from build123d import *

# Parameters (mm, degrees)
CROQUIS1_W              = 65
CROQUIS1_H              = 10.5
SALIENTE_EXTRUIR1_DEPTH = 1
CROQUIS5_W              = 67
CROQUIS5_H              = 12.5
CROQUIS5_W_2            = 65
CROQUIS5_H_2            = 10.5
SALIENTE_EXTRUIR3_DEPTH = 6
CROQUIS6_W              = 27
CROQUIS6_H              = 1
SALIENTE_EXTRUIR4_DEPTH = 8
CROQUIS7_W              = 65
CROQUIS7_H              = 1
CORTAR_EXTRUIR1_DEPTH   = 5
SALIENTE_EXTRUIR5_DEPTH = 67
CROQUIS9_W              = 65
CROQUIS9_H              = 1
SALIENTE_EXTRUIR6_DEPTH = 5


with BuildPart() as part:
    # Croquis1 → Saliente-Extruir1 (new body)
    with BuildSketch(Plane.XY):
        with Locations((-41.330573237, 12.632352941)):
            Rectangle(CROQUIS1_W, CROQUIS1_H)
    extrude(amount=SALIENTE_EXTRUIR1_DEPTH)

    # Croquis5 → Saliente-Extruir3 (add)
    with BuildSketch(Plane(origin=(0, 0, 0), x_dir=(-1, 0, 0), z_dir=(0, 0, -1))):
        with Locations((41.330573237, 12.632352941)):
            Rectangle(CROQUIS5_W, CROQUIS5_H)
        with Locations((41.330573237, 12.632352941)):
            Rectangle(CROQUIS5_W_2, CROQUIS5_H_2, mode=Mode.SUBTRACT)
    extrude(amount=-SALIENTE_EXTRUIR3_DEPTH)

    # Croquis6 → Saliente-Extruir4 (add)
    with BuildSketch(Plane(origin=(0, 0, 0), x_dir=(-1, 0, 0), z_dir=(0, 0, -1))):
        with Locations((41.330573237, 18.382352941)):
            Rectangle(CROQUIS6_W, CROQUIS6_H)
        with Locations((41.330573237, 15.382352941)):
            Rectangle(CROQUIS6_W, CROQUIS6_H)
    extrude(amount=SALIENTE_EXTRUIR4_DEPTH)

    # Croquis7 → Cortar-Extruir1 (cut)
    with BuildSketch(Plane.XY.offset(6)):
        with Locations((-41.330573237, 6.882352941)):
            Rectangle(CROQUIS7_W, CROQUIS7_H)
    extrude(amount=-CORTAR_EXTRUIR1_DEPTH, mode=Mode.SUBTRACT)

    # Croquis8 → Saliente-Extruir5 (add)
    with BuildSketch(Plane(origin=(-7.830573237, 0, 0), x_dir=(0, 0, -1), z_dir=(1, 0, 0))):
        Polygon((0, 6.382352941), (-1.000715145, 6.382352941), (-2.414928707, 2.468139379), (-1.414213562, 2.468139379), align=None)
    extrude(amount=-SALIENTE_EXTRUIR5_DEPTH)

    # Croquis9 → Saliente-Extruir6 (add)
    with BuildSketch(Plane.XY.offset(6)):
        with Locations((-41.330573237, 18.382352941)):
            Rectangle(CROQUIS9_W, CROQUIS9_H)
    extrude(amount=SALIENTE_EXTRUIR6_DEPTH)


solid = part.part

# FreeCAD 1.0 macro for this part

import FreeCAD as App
import Part
import Sketcher

V = App.Vector


def add_polygon(sketch, points):
    """Adds a closed chain of lines whose ends are joined by coincident constraints."""
    first, n = sketch.GeometryCount, len(points)
    for a, b in zip(points, points[1:] + points[:1]):
        sketch.addGeometry(Part.LineSegment(App.Vector(*a, 0), App.Vector(*b, 0)), False)
    for i in range(n):
        sketch.addConstraint(Sketcher.Constraint("Coincident", first + i, 2, first + (i + 1) % n, 1))

doc = App.newDocument("Part")
body = doc.addObject("PartDesign::Body", "Body")

# Sketch on XY plane
sketch1 = body.newObject("Sketcher::SketchObject", "Sketch")
sketch1.AttachmentSupport = (doc.getObject("XY_Plane"), [""])
sketch1.MapMode = "FlatFace"
add_polygon(sketch1, [(-74, 18), (-74, 7), (-9, 7), (-9, 18)])  # lines 0-3
sketch1.addConstraint([
    Sketcher.Constraint("Vertical", 0),
    Sketcher.Constraint("Horizontal", 1),
    Sketcher.Constraint("Vertical", 2),
    Sketcher.Constraint("Horizontal", 3),
    Sketcher.Constraint("DistanceX", 1, 1, 1, 2, 65.0),
    Sketcher.Constraint("DistanceY", 0, 2, 0, 1, 10.5),
    Sketcher.Constraint("DistanceX", 0, 2, -1, 1, 73.830573),
    Sketcher.Constraint("DistanceY", -1, 1, 0, 2, 7.382353),
])
pad1 = body.newObject("PartDesign::Pad", "Pad")
pad1.Profile = sketch1
pad1.Length = 1

# Sketch on XY plane
sketch2 = body.newObject("Sketcher::SketchObject", "Sketch001")
sketch2.AttachmentSupport = (doc.getObject("XY_Plane"), [""])
sketch2.MapMode = "FlatFace"
add_polygon(sketch2, [(-8, 19), (-8, 6), (-75, 6), (-75, 19)])  # lines 0-3
add_polygon(sketch2, [(-74, 7), (-9, 7), (-9, 18), (-74, 18)])  # lines 4-7
sketch2.addConstraint([
    Sketcher.Constraint("Vertical", 0),
    Sketcher.Constraint("Horizontal", 1),
    Sketcher.Constraint("Vertical", 2),
    Sketcher.Constraint("Horizontal", 3),
    Sketcher.Constraint("Horizontal", 4),
    Sketcher.Constraint("Vertical", 5),
    Sketcher.Constraint("Horizontal", 6),
    Sketcher.Constraint("Vertical", 7),
    Sketcher.Constraint("DistanceX", 1, 2, 1, 1, 67.0),
    Sketcher.Constraint("DistanceX", 4, 1, 4, 2, 65.0),
    Sketcher.Constraint("DistanceY", 0, 2, 0, 1, 12.5),
    Sketcher.Constraint("DistanceY", 5, 1, 5, 2, 10.5),
    Sketcher.Constraint("DistanceX", 4, 2, 0, 2, 1.0),
    Sketcher.Constraint("DistanceY", 0, 2, 4, 2, 1.0),
    Sketcher.Constraint("DistanceX", 0, 2, -1, 1, 7.830573),
    Sketcher.Constraint("DistanceY", -1, 1, 0, 2, 6.382353),
])
pad2 = body.newObject("PartDesign::Pad", "Pad001")
pad2.Profile = sketch2
pad2.Length = 6

# Sketch on XY plane
sketch3 = body.newObject("Sketcher::SketchObject", "Sketch002")
sketch3.AttachmentSupport = (doc.getObject("XY_Plane"), [""])
sketch3.MapMode = "FlatFace"
add_polygon(sketch3, [(-27.8, 18.9), (-27.8, 17.9), (-54.8, 17.9), (-54.8, 18.9)])  # lines 0-3
add_polygon(sketch3, [(-27.8, 15.9), (-27.8, 14.9), (-54.8, 14.9), (-54.8, 15.9)])  # lines 4-7
sketch3.addConstraint([
    Sketcher.Constraint("Vertical", 0),
    Sketcher.Constraint("Horizontal", 1),
    Sketcher.Constraint("Vertical", 2),
    Sketcher.Constraint("Horizontal", 3),
    Sketcher.Constraint("Vertical", 4),
    Sketcher.Constraint("Horizontal", 5),
    Sketcher.Constraint("Vertical", 6),
    Sketcher.Constraint("Horizontal", 7),
    Sketcher.Constraint("Vertical", 3, 2, 4, 2),
    Sketcher.Constraint("Vertical", 2, 2, 5, 2),
    Sketcher.Constraint("Equal", 2, 4),
    Sketcher.Constraint("DistanceX", 1, 2, 1, 1, 27.0),
    Sketcher.Constraint("DistanceY", 0, 2, 0, 1, 1.0),
    Sketcher.Constraint("DistanceY", 4, 2, 0, 2, 3.0),
    Sketcher.Constraint("DistanceX", 0, 2, -1, 1, 27.830573),
    Sketcher.Constraint("DistanceY", -1, 1, 0, 2, 17.882353),
])
pad3 = body.newObject("PartDesign::Pad", "Pad002")
pad3.Profile = sketch3
pad3.Length = 8
pad3.Reversed = True

# Sketch on XY plane
sketch4 = body.newObject("Sketcher::SketchObject", "Sketch003")
sketch4.AttachmentSupport = (doc.getObject("XY_Plane"), [""])
sketch4.MapMode = "FlatFace"
sketch4.AttachmentOffset = App.Placement(V(0, 0, 6), App.Rotation())
add_polygon(sketch4, [(-73.8, 7.4), (-73.8, 6.4), (-8.8, 6.4), (-8.8, 7.4)])  # lines 0-3
sketch4.addConstraint([
    Sketcher.Constraint("Vertical", 0),
    Sketcher.Constraint("Horizontal", 1),
    Sketcher.Constraint("Vertical", 2),
    Sketcher.Constraint("Horizontal", 3),
    Sketcher.Constraint("DistanceX", 1, 1, 1, 2, 65.0),
    Sketcher.Constraint("DistanceY", 0, 2, 0, 1, 1.0),
    Sketcher.Constraint("DistanceX", 0, 2, -1, 1, 73.830573),
    Sketcher.Constraint("DistanceY", -1, 1, 0, 2, 6.382353),
])
pocket1 = body.newObject("PartDesign::Pocket", "Pocket")
pocket1.Profile = sketch4
pocket1.Length = 5

# Sketch on YZ plane
sketch5 = body.newObject("Sketcher::SketchObject", "Sketch004")
sketch5.AttachmentSupport = (doc.getObject("YZ_Plane"), [""])
sketch5.MapMode = "FlatFace"
sketch5.AttachmentOffset = App.Placement(V(0, 0, -7.830573), App.Rotation())
add_polygon(sketch5, [(6.4, 0), (6.4, 1), (2.5, 2.4), (2.5, 1.4)])  # lines 0-3
sketch5.addConstraint([
    Sketcher.Constraint("Vertical", 0),
    Sketcher.Constraint("Vertical", 2),
    Sketcher.Constraint("PointOnObject", 3, 2, -1),
    Sketcher.Constraint("Parallel", 1, 3),
    Sketcher.Constraint("DistanceY", 0, 2, 2, 2, 0.413498),
    Sketcher.Constraint("Distance", 1, 4.161859),
    Sketcher.Constraint("DistanceY", 0, 1, 0, 2, 1.000715),
    Sketcher.Constraint("DistanceX", -1, 1, 1, 2, 2.468139),
])
pad4 = body.newObject("PartDesign::Pad", "Pad003")
pad4.Profile = sketch5
pad4.Length = 67
pad4.Reversed = True

# Sketch on XY plane
sketch6 = body.newObject("Sketcher::SketchObject", "Sketch005")
sketch6.AttachmentSupport = (doc.getObject("XY_Plane"), [""])
sketch6.MapMode = "FlatFace"
sketch6.AttachmentOffset = App.Placement(V(0, 0, 6), App.Rotation())
add_polygon(sketch6, [(-73.8, 18.9), (-73.8, 17.9), (-8.8, 17.9), (-8.8, 18.9)])  # lines 0-3
sketch6.addConstraint([
    Sketcher.Constraint("Vertical", 0),
    Sketcher.Constraint("Horizontal", 1),
    Sketcher.Constraint("Vertical", 2),
    Sketcher.Constraint("Horizontal", 3),
    Sketcher.Constraint("DistanceX", 1, 1, 1, 2, 65.0),
    Sketcher.Constraint("DistanceY", 0, 2, 0, 1, 1.0),
    Sketcher.Constraint("DistanceX", 0, 2, -1, 1, 73.830573),
    Sketcher.Constraint("DistanceY", -1, 1, 0, 2, 17.882353),
])
pad5 = body.newObject("PartDesign::Pad", "Pad004")
pad5.Profile = sketch6
pad5.Length = 5

doc.recompute()
